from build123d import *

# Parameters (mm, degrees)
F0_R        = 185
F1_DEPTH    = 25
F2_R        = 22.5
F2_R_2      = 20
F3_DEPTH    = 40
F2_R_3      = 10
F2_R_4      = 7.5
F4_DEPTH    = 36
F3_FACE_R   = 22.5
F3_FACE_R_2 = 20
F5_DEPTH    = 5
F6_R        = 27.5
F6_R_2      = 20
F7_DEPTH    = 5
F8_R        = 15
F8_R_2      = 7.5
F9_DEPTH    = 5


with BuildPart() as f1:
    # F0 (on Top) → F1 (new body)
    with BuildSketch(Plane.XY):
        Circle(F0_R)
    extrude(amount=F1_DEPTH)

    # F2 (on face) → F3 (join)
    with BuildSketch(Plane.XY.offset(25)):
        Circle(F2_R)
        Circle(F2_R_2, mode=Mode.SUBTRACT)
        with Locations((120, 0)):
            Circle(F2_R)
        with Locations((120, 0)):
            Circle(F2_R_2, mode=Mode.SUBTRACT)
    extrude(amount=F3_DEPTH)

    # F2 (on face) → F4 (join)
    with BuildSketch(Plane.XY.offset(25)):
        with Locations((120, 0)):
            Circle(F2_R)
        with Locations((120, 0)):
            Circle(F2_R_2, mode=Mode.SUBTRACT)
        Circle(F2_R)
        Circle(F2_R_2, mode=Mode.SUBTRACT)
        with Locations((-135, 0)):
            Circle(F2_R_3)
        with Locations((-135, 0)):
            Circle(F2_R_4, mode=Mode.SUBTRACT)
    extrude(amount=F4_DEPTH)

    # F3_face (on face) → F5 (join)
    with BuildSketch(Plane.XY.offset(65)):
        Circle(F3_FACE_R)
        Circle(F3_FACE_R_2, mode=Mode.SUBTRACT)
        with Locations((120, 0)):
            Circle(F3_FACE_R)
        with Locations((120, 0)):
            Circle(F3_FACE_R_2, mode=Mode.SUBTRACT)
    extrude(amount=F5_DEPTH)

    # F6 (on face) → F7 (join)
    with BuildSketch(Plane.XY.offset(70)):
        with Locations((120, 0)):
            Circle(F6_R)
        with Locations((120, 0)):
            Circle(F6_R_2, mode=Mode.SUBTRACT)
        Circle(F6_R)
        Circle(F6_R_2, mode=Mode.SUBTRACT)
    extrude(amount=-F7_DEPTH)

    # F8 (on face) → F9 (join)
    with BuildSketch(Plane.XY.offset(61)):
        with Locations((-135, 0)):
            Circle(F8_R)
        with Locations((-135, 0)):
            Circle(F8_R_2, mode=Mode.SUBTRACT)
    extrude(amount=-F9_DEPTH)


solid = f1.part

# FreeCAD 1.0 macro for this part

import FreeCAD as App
import Part
import Sketcher

doc = App.newDocument("Part")
body = doc.addObject("PartDesign::Body", "Body")

# Sketch on XY plane
sketch1 = body.newObject("Sketcher::SketchObject", "Sketch")
sketch1.AttachmentSupport = (doc.getObject("XY_Plane"), [""])
sketch1.MapMode = "FlatFace"
sketch1.addGeometry(Part.Circle(App.Vector(0, 0, 0), App.Vector(0, 0, 1), 185), False)
sketch1.addConstraint([
    Sketcher.Constraint("Coincident", 0, 3, -1, 1),
    Sketcher.Constraint("Diameter", 0, 370.0),
])
pad1 = body.newObject("PartDesign::Pad", "Pad")
pad1.Profile = sketch1
pad1.Length = 25

# Sketch on XY plane
sketch2 = body.newObject("Sketcher::SketchObject", "Sketch001")
sketch2.AttachmentSupport = (doc.getObject("XY_Plane"), [""])
sketch2.MapMode = "FlatFace"
sketch2.AttachmentOffset = App.Placement(App.Vector(0, 0, 25), App.Rotation())
sketch2.addGeometry([
    Part.Circle(App.Vector(0, 0, 0), App.Vector(0, 0, 1), 22.5),
    Part.Circle(App.Vector(0, 0, 0), App.Vector(0, 0, 1), 20),
    Part.Circle(App.Vector(120, 0, 0), App.Vector(0, 0, 1), 22.5),
    Part.Circle(App.Vector(120, 0, 0), App.Vector(0, 0, 1), 20),
], False)
sketch2.addConstraint([
    Sketcher.Constraint("Coincident", 0, 3, -1, 1),
    Sketcher.Constraint("Coincident", 1, 3, -1, 1),
    Sketcher.Constraint("Coincident", 3, 3, 2, 3),
    Sketcher.Constraint("Equal", 0, 2),
    Sketcher.Constraint("Equal", 1, 3),
    Sketcher.Constraint("PointOnObject", 2, 3, -1),
    Sketcher.Constraint("Diameter", 0, 45.0),
    Sketcher.Constraint("Diameter", 1, 40.0),
    Sketcher.Constraint("DistanceX", -1, 1, 2, 3, 120.0),
])
pad2 = body.newObject("PartDesign::Pad", "Pad001")
pad2.Profile = sketch2
pad2.Length = 40

# Sketch on XY plane
sketch3 = body.newObject("Sketcher::SketchObject", "Sketch002")
sketch3.AttachmentSupport = (doc.getObject("XY_Plane"), [""])
sketch3.MapMode = "FlatFace"
sketch3.AttachmentOffset = App.Placement(App.Vector(0, 0, 25), App.Rotation())
sketch3.addGeometry([
    Part.Circle(App.Vector(120, 0, 0), App.Vector(0, 0, 1), 22.5),  # 0
    Part.Circle(App.Vector(120, 0, 0), App.Vector(0, 0, 1), 20),  # 1
    Part.Circle(App.Vector(0, 0, 0), App.Vector(0, 0, 1), 22.5),  # 2
    Part.Circle(App.Vector(0, 0, 0), App.Vector(0, 0, 1), 20),  # 3
    Part.Circle(App.Vector(-135, 0, 0), App.Vector(0, 0, 1), 10),  # 4
    Part.Circle(App.Vector(-135, 0, 0), App.Vector(0, 0, 1), 7.5),  # 5
], False)
sketch3.addConstraint([
    Sketcher.Constraint("Coincident", 2, 3, -1, 1),
    Sketcher.Constraint("Coincident", 3, 3, -1, 1),
    Sketcher.Constraint("Coincident", 1, 3, 0, 3),
    Sketcher.Constraint("Coincident", 5, 3, 4, 3),
    Sketcher.Constraint("Equal", 0, 2),
    Sketcher.Constraint("Equal", 1, 3),
    Sketcher.Constraint("PointOnObject", 0, 3, -1),
    Sketcher.Constraint("PointOnObject", 4, 3, -1),
    Sketcher.Constraint("Diameter", 0, 45.0),
    Sketcher.Constraint("Diameter", 1, 40.0),
    Sketcher.Constraint("Diameter", 4, 20.0),
    Sketcher.Constraint("Diameter", 5, 15.0),
    Sketcher.Constraint("DistanceX", -1, 1, 0, 3, 120.0),
    Sketcher.Constraint("DistanceX", 4, 3, -1, 1, 135.0),
])
pad3 = body.newObject("PartDesign::Pad", "Pad002")
pad3.Profile = sketch3
pad3.Length = 36

# Sketch on XY plane
sketch4 = body.newObject("Sketcher::SketchObject", "Sketch003")
sketch4.AttachmentSupport = (doc.getObject("XY_Plane"), [""])
sketch4.MapMode = "FlatFace"
sketch4.AttachmentOffset = App.Placement(App.Vector(0, 0, 65), App.Rotation())
sketch4.addGeometry([
    Part.Circle(App.Vector(0, 0, 0), App.Vector(0, 0, 1), 22.5),
    Part.Circle(App.Vector(0, 0, 0), App.Vector(0, 0, 1), 20),
    Part.Circle(App.Vector(120, 0, 0), App.Vector(0, 0, 1), 22.5),
    Part.Circle(App.Vector(120, 0, 0), App.Vector(0, 0, 1), 20),
], False)
sketch4.addConstraint([
    Sketcher.Constraint("Coincident", 0, 3, -1, 1),
    Sketcher.Constraint("Coincident", 1, 3, -1, 1),
    Sketcher.Constraint("Coincident", 3, 3, 2, 3),
    Sketcher.Constraint("Equal", 0, 2),
    Sketcher.Constraint("Equal", 1, 3),
    Sketcher.Constraint("PointOnObject", 2, 3, -1),
    Sketcher.Constraint("Diameter", 0, 45.0),
    Sketcher.Constraint("Diameter", 1, 40.0),
    Sketcher.Constraint("DistanceX", -1, 1, 2, 3, 120.0),
])
pad4 = body.newObject("PartDesign::Pad", "Pad003")
pad4.Profile = sketch4
pad4.Length = 5

# Sketch on XY plane
sketch5 = body.newObject("Sketcher::SketchObject", "Sketch004")
sketch5.AttachmentSupport = (doc.getObject("XY_Plane"), [""])
sketch5.MapMode = "FlatFace"
sketch5.AttachmentOffset = App.Placement(App.Vector(0, 0, 70), App.Rotation())
sketch5.addGeometry([
    Part.Circle(App.Vector(120, 0, 0), App.Vector(0, 0, 1), 27.5),
    Part.Circle(App.Vector(120, 0, 0), App.Vector(0, 0, 1), 20),
    Part.Circle(App.Vector(0, 0, 0), App.Vector(0, 0, 1), 27.5),
    Part.Circle(App.Vector(0, 0, 0), App.Vector(0, 0, 1), 20),
], False)
sketch5.addConstraint([
    Sketcher.Constraint("Coincident", 2, 3, -1, 1),
    Sketcher.Constraint("Coincident", 3, 3, -1, 1),
    Sketcher.Constraint("Coincident", 1, 3, 0, 3),
    Sketcher.Constraint("Equal", 0, 2),
    Sketcher.Constraint("Equal", 1, 3),
    Sketcher.Constraint("PointOnObject", 0, 3, -1),
    Sketcher.Constraint("Diameter", 0, 55.0),
    Sketcher.Constraint("Diameter", 1, 40.0),
    Sketcher.Constraint("DistanceX", -1, 1, 0, 3, 120.0),
])
pad5 = body.newObject("PartDesign::Pad", "Pad004")
pad5.Profile = sketch5
pad5.Length = 5
pad5.Reversed = True

# Sketch on XY plane
sketch6 = body.newObject("Sketcher::SketchObject", "Sketch005")
sketch6.AttachmentSupport = (doc.getObject("XY_Plane"), [""])
sketch6.MapMode = "FlatFace"
sketch6.AttachmentOffset = App.Placement(App.Vector(0, 0, 61), App.Rotation())
sketch6.addGeometry([
    Part.Circle(App.Vector(-135, 0, 0), App.Vector(0, 0, 1), 15),
    Part.Circle(App.Vector(-135, 0, 0), App.Vector(0, 0, 1), 7.5),
], False)
sketch6.addConstraint([
    Sketcher.Constraint("Coincident", 1, 3, 0, 3),
    Sketcher.Constraint("PointOnObject", 0, 3, -1),
    Sketcher.Constraint("Diameter", 0, 30.0),
    Sketcher.Constraint("Diameter", 1, 15.0),
    Sketcher.Constraint("DistanceX", 0, 3, -1, 1, 135.0),
])
pad6 = body.newObject("PartDesign::Pad", "Pad005")
pad6.Profile = sketch6
pad6.Length = 5
pad6.Reversed = True

doc.recompute()
